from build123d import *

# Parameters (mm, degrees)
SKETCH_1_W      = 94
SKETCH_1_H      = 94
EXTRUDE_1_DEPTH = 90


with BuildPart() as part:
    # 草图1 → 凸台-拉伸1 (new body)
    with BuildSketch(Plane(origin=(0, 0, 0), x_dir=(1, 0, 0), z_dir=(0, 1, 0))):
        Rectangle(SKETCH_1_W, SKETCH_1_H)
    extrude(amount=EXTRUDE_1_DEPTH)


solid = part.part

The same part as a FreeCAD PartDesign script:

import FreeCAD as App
import Part
import Sketcher

doc = App.newDocument("Part")
body = doc.addObject("PartDesign::Body", "Body")

# Sketch on XZ plane
sketch1 = doc.addObject("Sketcher::SketchObject", "Sketch")
body.addObject(sketch1)
sketch1.AttachmentSupport = (doc.XZ_Plane, [""])
sketch1.MapMode = "FlatFace"
sketch1.addGeometry([
    Part.LineSegment(App.Vector(-47, -47, 0), App.Vector(-47, 47, 0)),
    Part.LineSegment(App.Vector(-47, 47, 0), App.Vector(47, 47, 0)),
    Part.LineSegment(App.Vector(47, 47, 0), App.Vector(47, -47, 0)),
    Part.LineSegment(App.Vector(47, -47, 0), App.Vector(-47, -47, 0)),
], False)
sketch1.addConstraint([
    Sketcher.Constraint("Coincident", 0, 2, 1, 1),
    Sketcher.Constraint("Coincident", 1, 2, 2, 1),
    Sketcher.Constraint("Coincident", 2, 2, 3, 1),
    Sketcher.Constraint("Coincident", 3, 2, 0, 1),
    Sketcher.Constraint("Vertical", 0),
    Sketcher.Constraint("Horizontal", 1),
    Sketcher.Constraint("Vertical", 2),
    Sketcher.Constraint("Horizontal", 3),
    Sketcher.Constraint("Symmetric", 0, 2, 2, 2, -1, 1),
    Sketcher.Constraint("Equal", 3, 0),
    Sketcher.Constraint("DistanceX", 1, 1, 1, 2, 94.0),
])
pad1 = doc.addObject("PartDesign::Pad", "Pad")
body.addObject(pad1)
pad1.Profile = sketch1
pad1.Length = 90
pad1.Reversed = True

doc.recompute()
